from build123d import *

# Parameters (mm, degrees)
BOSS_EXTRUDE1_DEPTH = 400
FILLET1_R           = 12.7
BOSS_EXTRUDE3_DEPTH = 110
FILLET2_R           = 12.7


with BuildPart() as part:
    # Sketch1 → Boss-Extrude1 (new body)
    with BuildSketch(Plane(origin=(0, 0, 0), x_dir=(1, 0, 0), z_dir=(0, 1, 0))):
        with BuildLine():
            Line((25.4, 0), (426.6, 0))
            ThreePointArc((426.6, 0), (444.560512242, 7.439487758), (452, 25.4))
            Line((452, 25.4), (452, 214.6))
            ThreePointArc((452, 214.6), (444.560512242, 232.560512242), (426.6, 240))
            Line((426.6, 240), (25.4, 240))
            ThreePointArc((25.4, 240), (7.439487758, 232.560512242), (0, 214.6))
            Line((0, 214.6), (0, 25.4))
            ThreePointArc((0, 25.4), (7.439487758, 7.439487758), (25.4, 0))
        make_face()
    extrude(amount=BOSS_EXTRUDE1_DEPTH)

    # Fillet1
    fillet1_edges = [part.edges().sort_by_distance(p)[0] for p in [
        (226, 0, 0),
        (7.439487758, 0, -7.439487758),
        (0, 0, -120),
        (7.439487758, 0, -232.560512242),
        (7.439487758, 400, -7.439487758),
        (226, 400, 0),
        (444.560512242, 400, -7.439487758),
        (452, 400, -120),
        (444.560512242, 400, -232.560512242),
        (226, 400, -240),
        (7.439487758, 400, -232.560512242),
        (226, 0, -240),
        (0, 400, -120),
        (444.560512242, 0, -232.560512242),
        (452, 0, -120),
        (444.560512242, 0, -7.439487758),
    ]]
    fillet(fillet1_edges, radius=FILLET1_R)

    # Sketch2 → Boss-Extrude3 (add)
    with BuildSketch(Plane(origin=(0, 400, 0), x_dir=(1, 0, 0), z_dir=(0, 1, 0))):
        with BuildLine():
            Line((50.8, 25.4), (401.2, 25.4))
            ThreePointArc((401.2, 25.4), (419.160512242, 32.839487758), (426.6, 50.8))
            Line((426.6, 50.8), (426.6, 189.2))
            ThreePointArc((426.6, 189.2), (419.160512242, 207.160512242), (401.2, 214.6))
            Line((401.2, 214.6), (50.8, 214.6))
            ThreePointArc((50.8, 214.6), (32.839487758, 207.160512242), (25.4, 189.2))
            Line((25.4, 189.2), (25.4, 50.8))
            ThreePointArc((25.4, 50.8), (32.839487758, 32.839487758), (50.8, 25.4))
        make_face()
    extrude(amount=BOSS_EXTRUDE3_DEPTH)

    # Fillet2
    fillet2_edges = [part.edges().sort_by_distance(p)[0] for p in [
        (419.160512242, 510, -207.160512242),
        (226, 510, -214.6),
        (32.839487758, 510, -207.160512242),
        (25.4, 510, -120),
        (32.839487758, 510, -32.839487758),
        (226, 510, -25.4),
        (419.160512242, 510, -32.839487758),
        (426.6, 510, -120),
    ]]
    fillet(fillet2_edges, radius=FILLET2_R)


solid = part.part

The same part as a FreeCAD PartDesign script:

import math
import FreeCAD as App
import Part
import Sketcher
from FreeCAD import Vector
Q = App.Units.Quantity


def edges_at(feature, points):
    """Names of the edges that pass closest to the given points."""
    edges = feature.Shape.Edges
    near = lambda p: min(range(len(edges)), key=lambda i: edges[i].distToShape(Part.Vertex(*p))[0])
    return sorted({f"Edge{near(p) + 1}" for p in points})

doc = App.newDocument("Part")
body = doc.addObject("PartDesign::Body", "Body")

sketch1 = doc.addObject("Sketcher::SketchObject", "Sketch")
body.addObject(sketch1)
sketch1.AttachmentSupport = (doc.XZ_Plane, [""])
sketch1.MapMode = "FlatFace"
sketch1.addGeometry(Part.LineSegment(Vector(25, 0, 0), Vector(427, 0, 0)), False)
sketch1.addGeometry(Part.ArcOfCircle(Part.Circle(Vector(427, -25, 0), Vector(0, 0, 1), 25), math.radians(0), math.radians(90)), False)
sketch1.addGeometry(Part.LineSegment(Vector(452, -25, 0), Vector(452, -215, 0)), False)
sketch1.addGeometry(Part.ArcOfCircle(Part.Circle(Vector(427, -215, 0), Vector(0, 0, 1), 25), math.radians(-90), math.radians(0)), False)
sketch1.addGeometry(Part.LineSegment(Vector(427, -240, 0), Vector(25, -240, 0)), False)
sketch1.addGeometry(Part.ArcOfCircle(Part.Circle(Vector(25, -215, 0), Vector(0, 0, 1), 25), math.radians(180), math.radians(270)), False)
sketch1.addGeometry(Part.LineSegment(Vector(0, -215, 0), Vector(0, -25, 0)), False)
sketch1.addGeometry(Part.ArcOfCircle(Part.Circle(Vector(25, -25, 0), Vector(0, 0, 1), 25), math.radians(90), math.radians(180)), False)
sketch1.addConstraint(Sketcher.Constraint("Tangent", 0, 2, 1, 2))
sketch1.addConstraint(Sketcher.Constraint("Tangent", 1, 1, 2, 1))
sketch1.addConstraint(Sketcher.Constraint("Tangent", 2, 2, 3, 2))
sketch1.addConstraint(Sketcher.Constraint("Tangent", 3, 1, 4, 1))
sketch1.addConstraint(Sketcher.Constraint("Tangent", 4, 2, 5, 2))
sketch1.addConstraint(Sketcher.Constraint("Tangent", 5, 1, 6, 1))
sketch1.addConstraint(Sketcher.Constraint("Tangent", 6, 2, 7, 2))
sketch1.addConstraint(Sketcher.Constraint("Tangent", 7, 1, 0, 1))
sketch1.addConstraint(Sketcher.Constraint("Horizontal", 0))
sketch1.addConstraint(Sketcher.Constraint("Vertical", 2))
sketch1.addConstraint(Sketcher.Constraint("Horizontal", 4))
sketch1.addConstraint(Sketcher.Constraint("Vertical", 6))
sketch1.addConstraint(Sketcher.Constraint("Equal", 1, 3))
sketch1.addConstraint(Sketcher.Constraint("Equal", 3, 5))
sketch1.addConstraint(Sketcher.Constraint("Equal", 5, 7))
sketch1.addConstraint(Sketcher.Constraint("PointOnObject", 0, 2, -1))
sketch1.addConstraint(Sketcher.Constraint("PointOnObject", 5, 1, -2))
sketch1.addConstraint(Sketcher.Constraint("Radius", 1, Q("25.4 mm")))
sketch1.addConstraint(Sketcher.Constraint("DistanceX", 0, 1, 0, 2, Q("401.2 mm")))
sketch1.addConstraint(Sketcher.Constraint("DistanceY", 2, 2, 2, 1, Q("189.2 mm")))
pad1 = doc.addObject("PartDesign::Pad", "Pad")
body.addObject(pad1)
pad1.Profile = sketch1
pad1.Length = 400
pad1.Reversed = True
doc.recompute()

fillet = doc.addObject("PartDesign::Fillet", "Fillet")
body.addObject(fillet)
fillet.Base = (pad1, edges_at(pad1, [
    (226, 0, 0),
    (7.439, 0, -7.439),
    (0, 0, -120),
    (7.439, 0, -232.561),
    (7.439, 400, -7.439),
    (226, 400, 0),
    (444.561, 400, -7.439),
    (452, 400, -120),
    (444.561, 400, -232.561),
    (226, 400, -240),
    (7.439, 400, -232.561),
    (226, 0, -240),
    (0, 400, -120),
    (444.561, 0, -232.561),
    (452, 0, -120),
    (444.561, 0, -7.439),
]))
fillet.Radius = 12.7

sketch2 = doc.addObject("Sketcher::SketchObject", "Sketch001")
body.addObject(sketch2)
sketch2.AttachmentSupport = (doc.XZ_Plane, [""])
sketch2.MapMode = "FlatFace"
sketch2.AttachmentOffset = App.Placement(Vector(0, 0, -400), App.Rotation())
sketch2.addGeometry(Part.LineSegment(Vector(51, -25, 0), Vector(401, -25, 0)), False)
sketch2.addGeometry(Part.ArcOfCircle(Part.Circle(Vector(401, -51, 0), Vector(0, 0, 1), 25), math.radians(0), math.radians(90)), False)
sketch2.addGeometry(Part.LineSegment(Vector(427, -51, 0), Vector(427, -189, 0)), False)
sketch2.addGeometry(Part.ArcOfCircle(Part.Circle(Vector(401, -189, 0), Vector(0, 0, 1), 25), math.radians(-90), math.radians(0)), False)
sketch2.addGeometry(Part.LineSegment(Vector(401, -215, 0), Vector(51, -215, 0)), False)
sketch2.addGeometry(Part.ArcOfCircle(Part.Circle(Vector(51, -189, 0), Vector(0, 0, 1), 25), math.radians(180), math.radians(270)), False)
sketch2.addGeometry(Part.LineSegment(Vector(25, -189, 0), Vector(25, -51, 0)), False)
sketch2.addGeometry(Part.ArcOfCircle(Part.Circle(Vector(51, -51, 0), Vector(0, 0, 1), 25), math.radians(90), math.radians(180)), False)
sketch2.addConstraint(Sketcher.Constraint("Tangent", 0, 2, 1, 2))
sketch2.addConstraint(Sketcher.Constraint("Tangent", 1, 1, 2, 1))
sketch2.addConstraint(Sketcher.Constraint("Tangent", 2, 2, 3, 2))
sketch2.addConstraint(Sketcher.Constraint("Tangent", 3, 1, 4, 1))
sketch2.addConstraint(Sketcher.Constraint("Tangent", 4, 2, 5, 2))
sketch2.addConstraint(Sketcher.Constraint("Tangent", 5, 1, 6, 1))
sketch2.addConstraint(Sketcher.Constraint("Tangent", 6, 2, 7, 2))
sketch2.addConstraint(Sketcher.Constraint("Tangent", 7, 1, 0, 1))
sketch2.addConstraint(Sketcher.Constraint("Horizontal", 0))
sketch2.addConstraint(Sketcher.Constraint("Vertical", 2))
sketch2.addConstraint(Sketcher.Constraint("Horizontal", 4))
sketch2.addConstraint(Sketcher.Constraint("Vertical", 6))
sketch2.addConstraint(Sketcher.Constraint("Equal", 1, 3))
sketch2.addConstraint(Sketcher.Constraint("Equal", 3, 5))
sketch2.addConstraint(Sketcher.Constraint("Equal", 5, 7))
sketch2.addConstraint(Sketcher.Constraint("Radius", 1, Q("25.4 mm")))
sketch2.addConstraint(Sketcher.Constraint("DistanceX", 0, 1, 0, 2, Q("350.4 mm")))
sketch2.addConstraint(Sketcher.Constraint("DistanceY", 2, 2, 2, 1, Q("138.4 mm")))
sketch2.addConstraint(Sketcher.Constraint("DistanceX", -1, 1, 1, 3, Q("401.2 mm")))
sketch2.addConstraint(Sketcher.Constraint("DistanceY", 1, 3, -1, 1, Q("50.8 mm")))
pad2 = doc.addObject("PartDesign::Pad", "Pad001")
body.addObject(pad2)
pad2.Profile = sketch2
pad2.Length = 110
pad2.Reversed = True
doc.recompute()

fillet2 = doc.addObject("PartDesign::Fillet", "Fillet001")
body.addObject(fillet2)
fillet2.Base = (pad2, edges_at(pad2, [
    (419.161, 510, -207.161),
    (226, 510, -214.6),
    (32.839, 510, -207.161),
    (25.4, 510, -120),
    (32.839, 510, -32.839),
    (226, 510, -25.4),
    (419.161, 510, -32.839),
    (426.6, 510, -120),
]))
fillet2.Radius = 12.7

doc.recompute()
